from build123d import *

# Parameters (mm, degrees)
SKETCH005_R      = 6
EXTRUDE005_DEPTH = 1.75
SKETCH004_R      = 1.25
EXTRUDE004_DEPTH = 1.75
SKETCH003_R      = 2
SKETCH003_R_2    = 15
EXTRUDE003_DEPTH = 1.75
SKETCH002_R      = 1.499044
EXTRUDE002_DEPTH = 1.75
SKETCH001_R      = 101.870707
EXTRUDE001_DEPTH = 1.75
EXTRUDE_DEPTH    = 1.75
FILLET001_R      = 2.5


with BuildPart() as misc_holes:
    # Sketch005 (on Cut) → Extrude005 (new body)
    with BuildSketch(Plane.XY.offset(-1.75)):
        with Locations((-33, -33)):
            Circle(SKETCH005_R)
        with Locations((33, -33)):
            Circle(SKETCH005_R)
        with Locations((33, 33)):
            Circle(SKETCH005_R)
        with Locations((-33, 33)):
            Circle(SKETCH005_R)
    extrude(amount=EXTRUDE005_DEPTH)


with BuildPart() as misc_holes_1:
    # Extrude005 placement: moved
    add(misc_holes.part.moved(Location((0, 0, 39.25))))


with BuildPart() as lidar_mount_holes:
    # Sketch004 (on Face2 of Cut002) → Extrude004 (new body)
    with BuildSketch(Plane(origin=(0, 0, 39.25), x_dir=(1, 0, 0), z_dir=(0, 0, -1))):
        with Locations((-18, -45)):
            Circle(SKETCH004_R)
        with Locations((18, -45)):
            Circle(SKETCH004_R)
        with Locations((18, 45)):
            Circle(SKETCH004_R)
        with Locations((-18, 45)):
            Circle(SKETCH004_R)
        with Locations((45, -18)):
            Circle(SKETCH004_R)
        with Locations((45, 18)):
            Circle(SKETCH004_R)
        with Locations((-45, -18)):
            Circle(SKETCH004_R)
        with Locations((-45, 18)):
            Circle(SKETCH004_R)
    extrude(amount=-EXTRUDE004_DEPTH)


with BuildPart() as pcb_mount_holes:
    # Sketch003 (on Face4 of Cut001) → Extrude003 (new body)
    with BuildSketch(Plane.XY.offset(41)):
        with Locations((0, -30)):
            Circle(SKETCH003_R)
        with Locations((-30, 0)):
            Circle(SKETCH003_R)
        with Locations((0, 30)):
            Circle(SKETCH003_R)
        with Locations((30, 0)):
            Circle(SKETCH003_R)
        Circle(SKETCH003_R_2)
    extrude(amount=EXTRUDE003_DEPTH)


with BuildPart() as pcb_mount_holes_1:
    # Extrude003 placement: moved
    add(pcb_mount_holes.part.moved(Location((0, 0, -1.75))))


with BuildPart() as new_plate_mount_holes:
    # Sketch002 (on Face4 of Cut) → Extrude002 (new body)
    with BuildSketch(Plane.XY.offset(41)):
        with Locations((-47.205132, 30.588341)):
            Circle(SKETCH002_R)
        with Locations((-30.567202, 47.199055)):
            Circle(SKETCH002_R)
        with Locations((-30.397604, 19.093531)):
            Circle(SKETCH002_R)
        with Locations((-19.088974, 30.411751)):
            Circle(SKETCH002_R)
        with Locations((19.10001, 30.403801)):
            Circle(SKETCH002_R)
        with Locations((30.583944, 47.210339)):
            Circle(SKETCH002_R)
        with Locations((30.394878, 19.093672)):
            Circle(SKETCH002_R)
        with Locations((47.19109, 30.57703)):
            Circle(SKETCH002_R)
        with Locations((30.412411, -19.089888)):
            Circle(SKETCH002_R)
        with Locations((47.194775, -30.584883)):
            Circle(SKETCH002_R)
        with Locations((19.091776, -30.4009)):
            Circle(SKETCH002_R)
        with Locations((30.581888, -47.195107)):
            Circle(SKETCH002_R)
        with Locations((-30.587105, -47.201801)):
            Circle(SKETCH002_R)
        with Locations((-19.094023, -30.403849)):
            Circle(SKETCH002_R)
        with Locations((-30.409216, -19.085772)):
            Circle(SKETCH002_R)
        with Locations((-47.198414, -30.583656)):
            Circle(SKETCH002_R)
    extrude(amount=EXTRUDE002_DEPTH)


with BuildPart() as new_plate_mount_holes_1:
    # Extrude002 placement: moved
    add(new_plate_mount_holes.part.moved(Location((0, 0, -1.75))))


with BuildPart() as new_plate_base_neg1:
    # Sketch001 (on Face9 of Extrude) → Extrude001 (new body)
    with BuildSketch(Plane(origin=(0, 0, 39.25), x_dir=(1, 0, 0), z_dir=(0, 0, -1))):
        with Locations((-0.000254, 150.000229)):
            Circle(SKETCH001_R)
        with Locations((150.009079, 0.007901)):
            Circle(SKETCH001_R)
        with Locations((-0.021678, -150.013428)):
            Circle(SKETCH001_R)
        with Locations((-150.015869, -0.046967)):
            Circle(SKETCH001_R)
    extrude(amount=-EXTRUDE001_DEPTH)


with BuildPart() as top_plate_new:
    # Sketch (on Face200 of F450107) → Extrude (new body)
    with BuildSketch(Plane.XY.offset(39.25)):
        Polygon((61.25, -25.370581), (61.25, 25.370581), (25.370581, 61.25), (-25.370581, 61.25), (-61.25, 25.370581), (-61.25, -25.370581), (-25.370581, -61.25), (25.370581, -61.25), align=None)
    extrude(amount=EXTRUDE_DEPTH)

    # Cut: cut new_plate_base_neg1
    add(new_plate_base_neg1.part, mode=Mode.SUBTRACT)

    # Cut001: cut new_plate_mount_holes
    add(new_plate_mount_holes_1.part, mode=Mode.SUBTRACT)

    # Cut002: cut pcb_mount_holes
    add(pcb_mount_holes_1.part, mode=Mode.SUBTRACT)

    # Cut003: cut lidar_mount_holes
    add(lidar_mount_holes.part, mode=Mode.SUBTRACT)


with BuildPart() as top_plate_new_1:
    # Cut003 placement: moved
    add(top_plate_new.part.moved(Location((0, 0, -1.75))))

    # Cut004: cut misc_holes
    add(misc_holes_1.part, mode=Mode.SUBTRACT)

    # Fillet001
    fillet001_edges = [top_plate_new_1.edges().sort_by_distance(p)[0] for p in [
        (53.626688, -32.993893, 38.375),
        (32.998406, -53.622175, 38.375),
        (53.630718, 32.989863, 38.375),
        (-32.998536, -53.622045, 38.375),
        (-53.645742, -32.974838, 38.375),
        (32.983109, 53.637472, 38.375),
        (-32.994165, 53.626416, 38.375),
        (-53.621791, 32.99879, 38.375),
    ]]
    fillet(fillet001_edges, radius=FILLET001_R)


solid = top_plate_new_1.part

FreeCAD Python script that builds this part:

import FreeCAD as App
import Part
import Sketcher

V = App.Vector


def edges_at(feature, points):
    """Names of the edges that pass closest to the given points."""
    edges = feature.Shape.Edges
    near = lambda p: min(range(len(edges)), key=lambda i: edges[i].distToShape(Part.Vertex(*p))[0])
    return sorted({f"Edge{near(p) + 1}" for p in points})


def add_polygon(sketch, points):
    """Adds a closed chain of lines whose ends are joined by coincident constraints."""
    first, n = sketch.GeometryCount, len(points)
    for a, b in zip(points, points[1:] + points[:1]):
        sketch.addGeometry(Part.LineSegment(App.Vector(*a, 0), App.Vector(*b, 0)), False)
    for i in range(n):
        sketch.addConstraint(Sketcher.Constraint("Coincident", first + i, 2, first + (i + 1) % n, 1))

doc = App.newDocument("Part")
body = doc.addObject("PartDesign::Body", "Body")
body.AllowCompound = True

sketch1 = body.newObject("Sketcher::SketchObject", "Sketch")
sketch1.AttachmentSupport = (doc.getObject("XY_Plane"), [""])
sketch1.MapMode = "FlatFace"
sketch1.AttachmentOffset = App.Placement(V(0, 0, -1.75), App.Rotation())
sketch1.addGeometry([
    Part.Circle(V(-33, -33, 0), V(0, 0, 1), 6),
    Part.Circle(V(33, -33, 0), V(0, 0, 1), 6),
    Part.Circle(V(33, 33, 0), V(0, 0, 1), 6),
    Part.Circle(V(-33, 33, 0), V(0, 0, 1), 6),
], False)
sketch1.addConstraint([
    Sketcher.Constraint("Equal", 0, 1),
    Sketcher.Constraint("Equal", 1, 2),
    Sketcher.Constraint("Equal", 2, 3),
    Sketcher.Constraint("Symmetric", 0, 3, 2, 3, -1, 1),
    Sketcher.Constraint("Symmetric", 1, 3, 3, 3, -1, 1),
    Sketcher.Constraint("Symmetric", 0, 3, 1, 3, -2),
    Sketcher.Constraint("Diameter", 0, 12.0),
    Sketcher.Constraint("DistanceX", 0, 3, -1, 1, 33.0),
    Sketcher.Constraint("DistanceY", 0, 3, -1, 1, 33.0),
])
pad1 = body.newObject("PartDesign::Pad", "Pad")
pad1.Profile = sketch1
pad1.Length = 1.75
body2 = doc.addObject("PartDesign::Body", "Body001")
body2.AllowCompound = True
doc.recompute()

body.Placement = App.Placement(V(0, 0, 39.25), App.Rotation(V(0, 0, 1), 0))
boolean = body2.newObject("PartDesign::Boolean", "Boolean")
boolean.Type = "Fuse"
boolean.addObjects([body])
body3 = doc.addObject("PartDesign::Body", "Body002")
body3.AllowCompound = True

sketch2 = body3.newObject("Sketcher::SketchObject", "Sketch001")
sketch2.AttachmentSupport = (doc.getObject("XY_Plane002"), [""])
sketch2.MapMode = "FlatFace"
sketch2.AttachmentOffset = App.Placement(V(0, 0, 39.25), App.Rotation())
sketch2.addGeometry([
    Part.Circle(V(-18, 45, 0), V(0, 0, 1), 1.2),
    Part.Circle(V(18, 45, 0), V(0, 0, 1), 1.2),
    Part.Circle(V(18, -45, 0), V(0, 0, 1), 1.2),
    Part.Circle(V(-18, -45, 0), V(0, 0, 1), 1.2),
    Part.Circle(V(45, 18, 0), V(0, 0, 1), 1.2),
    Part.Circle(V(45, -18, 0), V(0, 0, 1), 1.2),
    Part.Circle(V(-45, 18, 0), V(0, 0, 1), 1.2),
    Part.Circle(V(-45, -18, 0), V(0, 0, 1), 1.2),
], False)
sketch2.addConstraint([
    Sketcher.Constraint("Equal", 0, 1),
    Sketcher.Constraint("Equal", 1, 2),
    Sketcher.Constraint("Equal", 2, 3),
    Sketcher.Constraint("Equal", 3, 4),
    Sketcher.Constraint("Equal", 4, 5),
    Sketcher.Constraint("Equal", 5, 6),
    Sketcher.Constraint("Equal", 6, 7),
    Sketcher.Constraint("Symmetric", 0, 3, 2, 3, -1, 1),
    Sketcher.Constraint("Symmetric", 1, 3, 3, 3, -1, 1),
    Sketcher.Constraint("Symmetric", 5, 3, 6, 3, -1, 1),
    Sketcher.Constraint("Symmetric", 4, 3, 7, 3, -1, 1),
    Sketcher.Constraint("Symmetric", 0, 3, 1, 3, -2),
    Sketcher.Constraint("Symmetric", 4, 3, 6, 3, -2),
    Sketcher.Constraint("Diameter", 0, 2.5),
    Sketcher.Constraint("DistanceX", 0, 3, -1, 1, 18.0),
    Sketcher.Constraint("DistanceY", -1, 1, 0, 3, 45.0),
    Sketcher.Constraint("DistanceX", -1, 1, 4, 3, 45.0),
    Sketcher.Constraint("DistanceY", -1, 1, 4, 3, 18.0),
])
pad2 = body3.newObject("PartDesign::Pad", "Pad001")
pad2.Profile = sketch2
pad2.Length = 1.75
body4 = doc.addObject("PartDesign::Body", "Body003")
body4.AllowCompound = True

sketch3 = body4.newObject("Sketcher::SketchObject", "Sketch002")
sketch3.AttachmentSupport = (doc.getObject("XY_Plane003"), [""])
sketch3.MapMode = "FlatFace"
sketch3.AttachmentOffset = App.Placement(V(0, 0, 41), App.Rotation())
sketch3.addGeometry([
    Part.Circle(V(0, -30, 0), V(0, 0, 1), 2),
    Part.Circle(V(-30, 0, 0), V(0, 0, 1), 2),
    Part.Circle(V(0, 30, 0), V(0, 0, 1), 2),
    Part.Circle(V(30, 0, 0), V(0, 0, 1), 2),
    Part.Circle(V(0, 0, 0), V(0, 0, 1), 15),
], False)
sketch3.addConstraint([
    Sketcher.Constraint("Coincident", 4, 3, -1, 1),
    Sketcher.Constraint("Equal", 0, 1),
    Sketcher.Constraint("Equal", 1, 2),
    Sketcher.Constraint("Equal", 2, 3),
    Sketcher.Constraint("Symmetric", 0, 3, 2, 3, -1, 1),
    Sketcher.Constraint("Symmetric", 1, 3, 3, 3, -1, 1),
    Sketcher.Constraint("PointOnObject", 0, 3, -2),
    Sketcher.Constraint("PointOnObject", 1, 3, -1),
    Sketcher.Constraint("Diameter", 0, 4.0),
    Sketcher.Constraint("Diameter", 4, 30.0),
    Sketcher.Constraint("DistanceY", 0, 3, -1, 1, 30.0),
    Sketcher.Constraint("DistanceX", 1, 3, -1, 1, 30.0),
])
pad3 = body4.newObject("PartDesign::Pad", "Pad002")
pad3.Profile = sketch3
pad3.Length = 1.75
body5 = doc.addObject("PartDesign::Body", "Body004")
body5.AllowCompound = True
doc.recompute()

body4.Placement = App.Placement(V(0, 0, -1.75), App.Rotation(V(0, 0, 1), 0))
boolean2 = body5.newObject("PartDesign::Boolean", "Boolean001")
boolean2.Type = "Fuse"
boolean2.addObjects([body4])
body6 = doc.addObject("PartDesign::Body", "Body005")
body6.AllowCompound = True

sketch4 = body6.newObject("Sketcher::SketchObject", "Sketch003")
sketch4.AttachmentSupport = (doc.getObject("XY_Plane005"), [""])
sketch4.MapMode = "FlatFace"
sketch4.AttachmentOffset = App.Placement(V(0, 0, 41), App.Rotation())
sketch4.addGeometry([
    Part.Circle(V(-47.2, 30.6, 0), V(0, 0, 1), 1.5),
    Part.Circle(V(-30.6, 47.2, 0), V(0, 0, 1), 1.5),
    Part.Circle(V(-30.4, 19.1, 0), V(0, 0, 1), 1.5),
    Part.Circle(V(-19.1, 30.4, 0), V(0, 0, 1), 1.5),
    Part.Circle(V(19.1, 30.4, 0), V(0, 0, 1), 1.5),
    Part.Circle(V(30.6, 47.2, 0), V(0, 0, 1), 1.5),
    Part.Circle(V(30.4, 19.1, 0), V(0, 0, 1), 1.5),
    Part.Circle(V(47.2, 30.6, 0), V(0, 0, 1), 1.5),
    Part.Circle(V(30.4, -19.1, 0), V(0, 0, 1), 1.5),
    Part.Circle(V(47.2, -30.6, 0), V(0, 0, 1), 1.5),
    Part.Circle(V(19.1, -30.4, 0), V(0, 0, 1), 1.5),
    Part.Circle(V(30.6, -47.2, 0), V(0, 0, 1), 1.5),
    Part.Circle(V(-30.6, -47.2, 0), V(0, 0, 1), 1.5),
    Part.Circle(V(-19.1, -30.4, 0), V(0, 0, 1), 1.5),
    Part.Circle(V(-30.4, -19.1, 0), V(0, 0, 1), 1.5),
    Part.Circle(V(-47.2, -30.6, 0), V(0, 0, 1), 1.5),
], False)
sketch4.addConstraint([
    Sketcher.Constraint("Equal", 0, 1),
    Sketcher.Constraint("Equal", 1, 2),
    Sketcher.Constraint("Equal", 2, 3),
    Sketcher.Constraint("Equal", 3, 4),
    Sketcher.Constraint("Equal", 4, 5),
    Sketcher.Constraint("Equal", 5, 6),
    Sketcher.Constraint("Equal", 6, 7),
    Sketcher.Constraint("Equal", 7, 8),
    Sketcher.Constraint("Equal", 8, 9),
    Sketcher.Constraint("Equal", 9, 10),
    Sketcher.Constraint("Equal", 10, 11),
    Sketcher.Constraint("Equal", 11, 12),
    Sketcher.Constraint("Equal", 12, 13),
    Sketcher.Constraint("Equal", 13, 14),
    Sketcher.Constraint("Equal", 14, 15),
    Sketcher.Constraint("Diameter", 0, 2.998088),
    Sketcher.Constraint("DistanceX", 10, 3, 9, 3, 28.102999),
    Sketcher.Constraint("DistanceY", -1, 1, 4, 3, 30.403801),
    Sketcher.Constraint("DistanceY", 10, 3, -1, 1, 30.4009),
    Sketcher.Constraint("DistanceY", 12, 3, -1, 1, 47.201801),
    Sketcher.Constraint("DistanceX", 1, 3, 2, 3, 0.169598),
    Sketcher.Constraint("DistanceY", 2, 3, 7, 3, 11.483499),
    Sketcher.Constraint("DistanceX", 4, 3, 8, 3, 11.312401),
    Sketcher.Constraint("DistanceX", 10, 3, 6, 3, 11.303102),
    Sketcher.Constraint("DistanceX", 12, 3, 2, 3, 0.189501),
    Sketcher.Constraint("DistanceX", 13, 3, 10, 3, 38.185799),
    Sketcher.Constraint("DistanceY", -1, 1, 0, 3, 30.588341),
    Sketcher.Constraint("DistanceY", -1, 1, 2, 3, 19.093531),
    Sketcher.Constraint("DistanceY", -1, 1, 3, 3, 30.411751),
    Sketcher.Constraint("DistanceX", -1, 1, 4, 3, 19.10001),
    Sketcher.Constraint("DistanceY", -1, 1, 5, 3, 47.210339),
    Sketcher.Constraint("DistanceX", -1, 1, 7, 3, 47.19109),
    Sketcher.Constraint("DistanceY", 13, 3, -1, 1, 30.403849),
    Sketcher.Constraint("DistanceY", 14, 3, -1, 1, 19.085772),
    Sketcher.Constraint("DistanceX", 0, 3, 1, 3, 16.63793),
    Sketcher.Constraint("DistanceX", 2, 3, 3, 3, 11.30863),
    Sketcher.Constraint("DistanceX", 2, 3, 5, 3, 60.981548),
    Sketcher.Constraint("DistanceY", 6, 3, 4, 3, 11.310129),
    Sketcher.Constraint("DistanceX", 1, 3, 6, 3, 60.96208),
    Sketcher.Constraint("DistanceY", 8, 3, 6, 3, 38.18356),
    Sketcher.Constraint("DistanceY", 9, 3, 5, 3, 77.795222),
    Sketcher.Constraint("DistanceY", 11, 3, 8, 3, 28.105219),
    Sketcher.Constraint("DistanceX", 6, 3, 11, 3, 0.18701),
    Sketcher.Constraint("DistanceX", 12, 3, 14, 3, 0.177889),
    Sketcher.Constraint("DistanceX", 15, 3, 12, 3, 16.611309),
    Sketcher.Constraint("DistanceX", 0, 3, -1, 1, 47.205132),
    Sketcher.Constraint("DistanceY", -1, 1, 1, 3, 47.199055),
    Sketcher.Constraint("DistanceY", 15, 3, -1, 1, 30.583656),
])
pad4 = body6.newObject("PartDesign::Pad", "Pad003")
pad4.Profile = sketch4
pad4.Length = 1.75
body7 = doc.addObject("PartDesign::Body", "Body006")
body7.AllowCompound = True
doc.recompute()

body6.Placement = App.Placement(V(0, 0, -1.75), App.Rotation(V(0, 0, 1), 0))
boolean3 = body7.newObject("PartDesign::Boolean", "Boolean002")
boolean3.Type = "Fuse"
boolean3.addObjects([body6])
body8 = doc.addObject("PartDesign::Body", "Body007")
body8.AllowCompound = True

sketch5 = body8.newObject("Sketcher::SketchObject", "Sketch004")
sketch5.AttachmentSupport = (doc.getObject("XY_Plane007"), [""])
sketch5.MapMode = "FlatFace"
sketch5.AttachmentOffset = App.Placement(V(0, 0, 39.25), App.Rotation())
sketch5.addGeometry([
    Part.Circle(V(0, -150, 0), V(0, 0, 1), 102),
    Part.Circle(V(150, 0, 0), V(0, 0, 1), 102),
    Part.Circle(V(0, 150, 0), V(0, 0, 1), 102),
    Part.Circle(V(-150, 0, 0), V(0, 0, 1), 102),
], False)
sketch5.addConstraint([
    Sketcher.Constraint("Equal", 0, 1),
    Sketcher.Constraint("Equal", 1, 2),
    Sketcher.Constraint("Equal", 2, 3),
    Sketcher.Constraint("Diameter", 0, 203.741414),
    Sketcher.Constraint("DistanceY", 1, 3, -1, 1, 0.007901),
    Sketcher.Constraint("DistanceY", 0, 3, -1, 1, 150.000229),
    Sketcher.Constraint("DistanceX", -1, 1, 1, 3, 150.009079),
    Sketcher.Constraint("DistanceY", -1, 1, 2, 3, 150.013428),
    Sketcher.Constraint("DistanceX", 3, 3, -1, 1, 150.015869),
    Sketcher.Constraint("DistanceX", 3, 3, 2, 3, 149.994191),
    Sketcher.Constraint("DistanceY", 3, 3, 2, 3, 149.966461),
    Sketcher.Constraint("DistanceX", 0, 3, -1, 1, 0.000254),
])
pad5 = body8.newObject("PartDesign::Pad", "Pad004")
pad5.Profile = sketch5
pad5.Length = 1.75
body9 = doc.addObject("PartDesign::Body", "Body008")

sketch6 = body9.newObject("Sketcher::SketchObject", "Sketch005")
sketch6.AttachmentSupport = (doc.getObject("XY_Plane008"), [""])
sketch6.MapMode = "FlatFace"
sketch6.AttachmentOffset = App.Placement(V(0, 0, 39.25), App.Rotation())
add_polygon(sketch6, [(61, -25), (61, 25), (25, 61), (-25, 61), (-61, 25), (-61, -25), (-25, -61), (25, -61)])
sketch6.addConstraint([
    Sketcher.Constraint("Vertical", 0),
    Sketcher.Constraint("Horizontal", 2),
    Sketcher.Constraint("Vertical", 4),
    Sketcher.Constraint("Horizontal", 6),
    Sketcher.Constraint("Symmetric", 0, 2, 4, 2, -1, 1),
    Sketcher.Constraint("Symmetric", 1, 2, 5, 2, -1, 1),
    Sketcher.Constraint("Perpendicular", 1, 3),
    Sketcher.Constraint("Perpendicular", 5, 7),
    Sketcher.Constraint("Horizontal", 0, 2, 3, 2),
    Sketcher.Constraint("Horizontal", 4, 2, 7, 2),
    Sketcher.Constraint("Vertical", 2, 2, 5, 2),
    Sketcher.Constraint("Equal", 6, 0),
    Sketcher.Constraint("DistanceX", 3, 2, 0, 2, 122.5),
    Sketcher.Constraint("Distance", 1, 50.741161),
])
pad6 = body9.newObject("PartDesign::Pad", "Pad005")
pad6.Profile = sketch6
pad6.Length = 1.75
doc.recompute()

boolean4 = body9.newObject("PartDesign::Boolean", "Boolean003")
boolean4.Type = "Cut"
boolean4.addObjects([body8])
doc.recompute()

boolean5 = body9.newObject("PartDesign::Boolean", "Boolean004")
boolean5.Type = "Cut"
boolean5.addObjects([body7])
doc.recompute()

boolean6 = body9.newObject("PartDesign::Boolean", "Boolean005")
boolean6.Type = "Cut"
boolean6.addObjects([body5])
doc.recompute()

boolean7 = body9.newObject("PartDesign::Boolean", "Boolean006")
boolean7.Type = "Cut"
boolean7.addObjects([body3])
body10 = doc.addObject("PartDesign::Body", "Body009")
doc.recompute()

body9.Placement = App.Placement(V(0, 0, -1.75), App.Rotation(V(0, 0, 1), 0))
boolean8 = body10.newObject("PartDesign::Boolean", "Boolean007")
boolean8.Type = "Fuse"
boolean8.addObjects([body9])
doc.recompute()

boolean9 = body10.newObject("PartDesign::Boolean", "Boolean008")
boolean9.Type = "Cut"
boolean9.addObjects([body2])
doc.recompute()

fillet = body10.newObject("PartDesign::Fillet", "Fillet")
fillet.Base = (boolean9, edges_at(boolean9, [
    (53.627, -32.994, 38.375),
    (32.998, -53.622, 38.375),
    (53.631, 32.99, 38.375),
    (-32.999, -53.622, 38.375),
    (-53.646, -32.975, 38.375),
    (32.983, 53.637, 38.375),
    (-32.994, 53.626, 38.375),
    (-53.622, 32.999, 38.375),
]))
fillet.Radius = 2.5

doc.recompute()
